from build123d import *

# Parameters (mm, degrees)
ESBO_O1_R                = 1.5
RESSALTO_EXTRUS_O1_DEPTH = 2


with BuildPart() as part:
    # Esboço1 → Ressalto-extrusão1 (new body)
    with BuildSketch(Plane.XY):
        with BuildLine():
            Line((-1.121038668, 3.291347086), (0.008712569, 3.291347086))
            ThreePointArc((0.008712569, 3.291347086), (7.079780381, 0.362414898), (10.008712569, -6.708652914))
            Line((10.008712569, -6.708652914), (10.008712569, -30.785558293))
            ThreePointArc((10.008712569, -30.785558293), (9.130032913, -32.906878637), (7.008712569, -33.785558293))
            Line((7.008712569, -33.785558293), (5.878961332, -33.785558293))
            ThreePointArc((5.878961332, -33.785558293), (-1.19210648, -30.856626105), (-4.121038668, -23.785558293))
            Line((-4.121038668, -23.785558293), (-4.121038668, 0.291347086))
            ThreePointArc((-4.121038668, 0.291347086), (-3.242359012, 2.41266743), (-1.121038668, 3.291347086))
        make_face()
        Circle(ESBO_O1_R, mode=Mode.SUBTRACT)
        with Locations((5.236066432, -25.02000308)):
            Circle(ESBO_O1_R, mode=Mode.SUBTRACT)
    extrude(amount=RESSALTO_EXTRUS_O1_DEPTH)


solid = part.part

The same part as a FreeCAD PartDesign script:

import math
import FreeCAD as App
import Part
import Sketcher

V = App.Vector

doc = App.newDocument("Part")
body = doc.addObject("PartDesign::Body", "Body")

# Sketch on XY plane
sketch1 = body.newObject("Sketcher::SketchObject", "Sketch")
sketch1.AttachmentSupport = (doc.getObject("XY_Plane"), [""])
sketch1.MapMode = "FlatFace"
sketch1.addGeometry([
    Part.LineSegment(V(0, 3.3, 0), V(-1.1, 3.3, 0)),  # 0
    Part.ArcOfCircle(Part.Circle(V(-1.1, 0.3, 0), V(0, 0, 1), 3), math.radians(90), math.radians(180)),  # 1
    Part.LineSegment(V(-4.1, 0.3, 0), V(-4.1, -23.8, 0)),  # 2
    Part.ArcOfCircle(Part.Circle(V(5.9, -23.8, 0), V(0, 0, 1), 10), math.radians(180), math.radians(270)),  # 3
    Part.LineSegment(V(5.9, -33.8, 0), V(7, -33.8, 0)),  # 4
    Part.ArcOfCircle(Part.Circle(V(7, -30.8, 0), V(0, 0, 1), 3), math.radians(-90), math.radians(0)),  # 5
    Part.LineSegment(V(10, -30.8, 0), V(10, -6.7, 0)),  # 6
    Part.ArcOfCircle(Part.Circle(V(0, -6.7, 0), V(0, 0, 1), 10), math.radians(0), math.radians(90)),  # 7
    Part.Circle(V(5.2, -25, 0), V(0, 0, 1), 1.5),  # 8
    Part.Circle(V(0, 0, 0), V(0, 0, 1), 1.5),  # 9
], False)
sketch1.addConstraint([
    Sketcher.Constraint("Tangent", 0, 2, 1, 1),
    Sketcher.Constraint("Tangent", 1, 2, 2, 1),
    Sketcher.Constraint("Tangent", 2, 2, 3, 1),
    Sketcher.Constraint("Tangent", 3, 2, 4, 1),
    Sketcher.Constraint("Tangent", 4, 2, 5, 1),
    Sketcher.Constraint("Tangent", 5, 2, 6, 1),
    Sketcher.Constraint("Tangent", 6, 2, 7, 1),
    Sketcher.Constraint("Tangent", 7, 2, 0, 1),
    Sketcher.Constraint("Horizontal", 0),
    Sketcher.Constraint("Vertical", 2),
    Sketcher.Constraint("Horizontal", 4),
    Sketcher.Constraint("Vertical", 6),
    Sketcher.Constraint("Coincident", 9, 3, -1, 1),
    Sketcher.Constraint("Equal", 1, 5),
    Sketcher.Constraint("Equal", 3, 7),
    Sketcher.Constraint("Equal", 8, 9),
    Sketcher.Constraint("Diameter", 8, 3.0),
    Sketcher.Constraint("Radius", 1, 3.0),
    Sketcher.Constraint("Radius", 3, 10.0),
    Sketcher.Constraint("DistanceX", 0, 2, 0, 1, 1.129751),
    Sketcher.Constraint("DistanceY", 2, 2, 2, 1, 24.076905),
    Sketcher.Constraint("DistanceX", 1, 3, -1, 1, 1.121039),
    Sketcher.Constraint("DistanceY", 3, 3, -1, 1, 23.785558),
    Sketcher.Constraint("DistanceY", 8, 3, 7, 3, 18.31135),
    Sketcher.Constraint("DistanceX", -1, 1, 8, 3, 5.236066),
])
pad1 = body.newObject("PartDesign::Pad", "Pad")
pad1.Profile = sketch1
pad1.Length = 2

doc.recompute()
